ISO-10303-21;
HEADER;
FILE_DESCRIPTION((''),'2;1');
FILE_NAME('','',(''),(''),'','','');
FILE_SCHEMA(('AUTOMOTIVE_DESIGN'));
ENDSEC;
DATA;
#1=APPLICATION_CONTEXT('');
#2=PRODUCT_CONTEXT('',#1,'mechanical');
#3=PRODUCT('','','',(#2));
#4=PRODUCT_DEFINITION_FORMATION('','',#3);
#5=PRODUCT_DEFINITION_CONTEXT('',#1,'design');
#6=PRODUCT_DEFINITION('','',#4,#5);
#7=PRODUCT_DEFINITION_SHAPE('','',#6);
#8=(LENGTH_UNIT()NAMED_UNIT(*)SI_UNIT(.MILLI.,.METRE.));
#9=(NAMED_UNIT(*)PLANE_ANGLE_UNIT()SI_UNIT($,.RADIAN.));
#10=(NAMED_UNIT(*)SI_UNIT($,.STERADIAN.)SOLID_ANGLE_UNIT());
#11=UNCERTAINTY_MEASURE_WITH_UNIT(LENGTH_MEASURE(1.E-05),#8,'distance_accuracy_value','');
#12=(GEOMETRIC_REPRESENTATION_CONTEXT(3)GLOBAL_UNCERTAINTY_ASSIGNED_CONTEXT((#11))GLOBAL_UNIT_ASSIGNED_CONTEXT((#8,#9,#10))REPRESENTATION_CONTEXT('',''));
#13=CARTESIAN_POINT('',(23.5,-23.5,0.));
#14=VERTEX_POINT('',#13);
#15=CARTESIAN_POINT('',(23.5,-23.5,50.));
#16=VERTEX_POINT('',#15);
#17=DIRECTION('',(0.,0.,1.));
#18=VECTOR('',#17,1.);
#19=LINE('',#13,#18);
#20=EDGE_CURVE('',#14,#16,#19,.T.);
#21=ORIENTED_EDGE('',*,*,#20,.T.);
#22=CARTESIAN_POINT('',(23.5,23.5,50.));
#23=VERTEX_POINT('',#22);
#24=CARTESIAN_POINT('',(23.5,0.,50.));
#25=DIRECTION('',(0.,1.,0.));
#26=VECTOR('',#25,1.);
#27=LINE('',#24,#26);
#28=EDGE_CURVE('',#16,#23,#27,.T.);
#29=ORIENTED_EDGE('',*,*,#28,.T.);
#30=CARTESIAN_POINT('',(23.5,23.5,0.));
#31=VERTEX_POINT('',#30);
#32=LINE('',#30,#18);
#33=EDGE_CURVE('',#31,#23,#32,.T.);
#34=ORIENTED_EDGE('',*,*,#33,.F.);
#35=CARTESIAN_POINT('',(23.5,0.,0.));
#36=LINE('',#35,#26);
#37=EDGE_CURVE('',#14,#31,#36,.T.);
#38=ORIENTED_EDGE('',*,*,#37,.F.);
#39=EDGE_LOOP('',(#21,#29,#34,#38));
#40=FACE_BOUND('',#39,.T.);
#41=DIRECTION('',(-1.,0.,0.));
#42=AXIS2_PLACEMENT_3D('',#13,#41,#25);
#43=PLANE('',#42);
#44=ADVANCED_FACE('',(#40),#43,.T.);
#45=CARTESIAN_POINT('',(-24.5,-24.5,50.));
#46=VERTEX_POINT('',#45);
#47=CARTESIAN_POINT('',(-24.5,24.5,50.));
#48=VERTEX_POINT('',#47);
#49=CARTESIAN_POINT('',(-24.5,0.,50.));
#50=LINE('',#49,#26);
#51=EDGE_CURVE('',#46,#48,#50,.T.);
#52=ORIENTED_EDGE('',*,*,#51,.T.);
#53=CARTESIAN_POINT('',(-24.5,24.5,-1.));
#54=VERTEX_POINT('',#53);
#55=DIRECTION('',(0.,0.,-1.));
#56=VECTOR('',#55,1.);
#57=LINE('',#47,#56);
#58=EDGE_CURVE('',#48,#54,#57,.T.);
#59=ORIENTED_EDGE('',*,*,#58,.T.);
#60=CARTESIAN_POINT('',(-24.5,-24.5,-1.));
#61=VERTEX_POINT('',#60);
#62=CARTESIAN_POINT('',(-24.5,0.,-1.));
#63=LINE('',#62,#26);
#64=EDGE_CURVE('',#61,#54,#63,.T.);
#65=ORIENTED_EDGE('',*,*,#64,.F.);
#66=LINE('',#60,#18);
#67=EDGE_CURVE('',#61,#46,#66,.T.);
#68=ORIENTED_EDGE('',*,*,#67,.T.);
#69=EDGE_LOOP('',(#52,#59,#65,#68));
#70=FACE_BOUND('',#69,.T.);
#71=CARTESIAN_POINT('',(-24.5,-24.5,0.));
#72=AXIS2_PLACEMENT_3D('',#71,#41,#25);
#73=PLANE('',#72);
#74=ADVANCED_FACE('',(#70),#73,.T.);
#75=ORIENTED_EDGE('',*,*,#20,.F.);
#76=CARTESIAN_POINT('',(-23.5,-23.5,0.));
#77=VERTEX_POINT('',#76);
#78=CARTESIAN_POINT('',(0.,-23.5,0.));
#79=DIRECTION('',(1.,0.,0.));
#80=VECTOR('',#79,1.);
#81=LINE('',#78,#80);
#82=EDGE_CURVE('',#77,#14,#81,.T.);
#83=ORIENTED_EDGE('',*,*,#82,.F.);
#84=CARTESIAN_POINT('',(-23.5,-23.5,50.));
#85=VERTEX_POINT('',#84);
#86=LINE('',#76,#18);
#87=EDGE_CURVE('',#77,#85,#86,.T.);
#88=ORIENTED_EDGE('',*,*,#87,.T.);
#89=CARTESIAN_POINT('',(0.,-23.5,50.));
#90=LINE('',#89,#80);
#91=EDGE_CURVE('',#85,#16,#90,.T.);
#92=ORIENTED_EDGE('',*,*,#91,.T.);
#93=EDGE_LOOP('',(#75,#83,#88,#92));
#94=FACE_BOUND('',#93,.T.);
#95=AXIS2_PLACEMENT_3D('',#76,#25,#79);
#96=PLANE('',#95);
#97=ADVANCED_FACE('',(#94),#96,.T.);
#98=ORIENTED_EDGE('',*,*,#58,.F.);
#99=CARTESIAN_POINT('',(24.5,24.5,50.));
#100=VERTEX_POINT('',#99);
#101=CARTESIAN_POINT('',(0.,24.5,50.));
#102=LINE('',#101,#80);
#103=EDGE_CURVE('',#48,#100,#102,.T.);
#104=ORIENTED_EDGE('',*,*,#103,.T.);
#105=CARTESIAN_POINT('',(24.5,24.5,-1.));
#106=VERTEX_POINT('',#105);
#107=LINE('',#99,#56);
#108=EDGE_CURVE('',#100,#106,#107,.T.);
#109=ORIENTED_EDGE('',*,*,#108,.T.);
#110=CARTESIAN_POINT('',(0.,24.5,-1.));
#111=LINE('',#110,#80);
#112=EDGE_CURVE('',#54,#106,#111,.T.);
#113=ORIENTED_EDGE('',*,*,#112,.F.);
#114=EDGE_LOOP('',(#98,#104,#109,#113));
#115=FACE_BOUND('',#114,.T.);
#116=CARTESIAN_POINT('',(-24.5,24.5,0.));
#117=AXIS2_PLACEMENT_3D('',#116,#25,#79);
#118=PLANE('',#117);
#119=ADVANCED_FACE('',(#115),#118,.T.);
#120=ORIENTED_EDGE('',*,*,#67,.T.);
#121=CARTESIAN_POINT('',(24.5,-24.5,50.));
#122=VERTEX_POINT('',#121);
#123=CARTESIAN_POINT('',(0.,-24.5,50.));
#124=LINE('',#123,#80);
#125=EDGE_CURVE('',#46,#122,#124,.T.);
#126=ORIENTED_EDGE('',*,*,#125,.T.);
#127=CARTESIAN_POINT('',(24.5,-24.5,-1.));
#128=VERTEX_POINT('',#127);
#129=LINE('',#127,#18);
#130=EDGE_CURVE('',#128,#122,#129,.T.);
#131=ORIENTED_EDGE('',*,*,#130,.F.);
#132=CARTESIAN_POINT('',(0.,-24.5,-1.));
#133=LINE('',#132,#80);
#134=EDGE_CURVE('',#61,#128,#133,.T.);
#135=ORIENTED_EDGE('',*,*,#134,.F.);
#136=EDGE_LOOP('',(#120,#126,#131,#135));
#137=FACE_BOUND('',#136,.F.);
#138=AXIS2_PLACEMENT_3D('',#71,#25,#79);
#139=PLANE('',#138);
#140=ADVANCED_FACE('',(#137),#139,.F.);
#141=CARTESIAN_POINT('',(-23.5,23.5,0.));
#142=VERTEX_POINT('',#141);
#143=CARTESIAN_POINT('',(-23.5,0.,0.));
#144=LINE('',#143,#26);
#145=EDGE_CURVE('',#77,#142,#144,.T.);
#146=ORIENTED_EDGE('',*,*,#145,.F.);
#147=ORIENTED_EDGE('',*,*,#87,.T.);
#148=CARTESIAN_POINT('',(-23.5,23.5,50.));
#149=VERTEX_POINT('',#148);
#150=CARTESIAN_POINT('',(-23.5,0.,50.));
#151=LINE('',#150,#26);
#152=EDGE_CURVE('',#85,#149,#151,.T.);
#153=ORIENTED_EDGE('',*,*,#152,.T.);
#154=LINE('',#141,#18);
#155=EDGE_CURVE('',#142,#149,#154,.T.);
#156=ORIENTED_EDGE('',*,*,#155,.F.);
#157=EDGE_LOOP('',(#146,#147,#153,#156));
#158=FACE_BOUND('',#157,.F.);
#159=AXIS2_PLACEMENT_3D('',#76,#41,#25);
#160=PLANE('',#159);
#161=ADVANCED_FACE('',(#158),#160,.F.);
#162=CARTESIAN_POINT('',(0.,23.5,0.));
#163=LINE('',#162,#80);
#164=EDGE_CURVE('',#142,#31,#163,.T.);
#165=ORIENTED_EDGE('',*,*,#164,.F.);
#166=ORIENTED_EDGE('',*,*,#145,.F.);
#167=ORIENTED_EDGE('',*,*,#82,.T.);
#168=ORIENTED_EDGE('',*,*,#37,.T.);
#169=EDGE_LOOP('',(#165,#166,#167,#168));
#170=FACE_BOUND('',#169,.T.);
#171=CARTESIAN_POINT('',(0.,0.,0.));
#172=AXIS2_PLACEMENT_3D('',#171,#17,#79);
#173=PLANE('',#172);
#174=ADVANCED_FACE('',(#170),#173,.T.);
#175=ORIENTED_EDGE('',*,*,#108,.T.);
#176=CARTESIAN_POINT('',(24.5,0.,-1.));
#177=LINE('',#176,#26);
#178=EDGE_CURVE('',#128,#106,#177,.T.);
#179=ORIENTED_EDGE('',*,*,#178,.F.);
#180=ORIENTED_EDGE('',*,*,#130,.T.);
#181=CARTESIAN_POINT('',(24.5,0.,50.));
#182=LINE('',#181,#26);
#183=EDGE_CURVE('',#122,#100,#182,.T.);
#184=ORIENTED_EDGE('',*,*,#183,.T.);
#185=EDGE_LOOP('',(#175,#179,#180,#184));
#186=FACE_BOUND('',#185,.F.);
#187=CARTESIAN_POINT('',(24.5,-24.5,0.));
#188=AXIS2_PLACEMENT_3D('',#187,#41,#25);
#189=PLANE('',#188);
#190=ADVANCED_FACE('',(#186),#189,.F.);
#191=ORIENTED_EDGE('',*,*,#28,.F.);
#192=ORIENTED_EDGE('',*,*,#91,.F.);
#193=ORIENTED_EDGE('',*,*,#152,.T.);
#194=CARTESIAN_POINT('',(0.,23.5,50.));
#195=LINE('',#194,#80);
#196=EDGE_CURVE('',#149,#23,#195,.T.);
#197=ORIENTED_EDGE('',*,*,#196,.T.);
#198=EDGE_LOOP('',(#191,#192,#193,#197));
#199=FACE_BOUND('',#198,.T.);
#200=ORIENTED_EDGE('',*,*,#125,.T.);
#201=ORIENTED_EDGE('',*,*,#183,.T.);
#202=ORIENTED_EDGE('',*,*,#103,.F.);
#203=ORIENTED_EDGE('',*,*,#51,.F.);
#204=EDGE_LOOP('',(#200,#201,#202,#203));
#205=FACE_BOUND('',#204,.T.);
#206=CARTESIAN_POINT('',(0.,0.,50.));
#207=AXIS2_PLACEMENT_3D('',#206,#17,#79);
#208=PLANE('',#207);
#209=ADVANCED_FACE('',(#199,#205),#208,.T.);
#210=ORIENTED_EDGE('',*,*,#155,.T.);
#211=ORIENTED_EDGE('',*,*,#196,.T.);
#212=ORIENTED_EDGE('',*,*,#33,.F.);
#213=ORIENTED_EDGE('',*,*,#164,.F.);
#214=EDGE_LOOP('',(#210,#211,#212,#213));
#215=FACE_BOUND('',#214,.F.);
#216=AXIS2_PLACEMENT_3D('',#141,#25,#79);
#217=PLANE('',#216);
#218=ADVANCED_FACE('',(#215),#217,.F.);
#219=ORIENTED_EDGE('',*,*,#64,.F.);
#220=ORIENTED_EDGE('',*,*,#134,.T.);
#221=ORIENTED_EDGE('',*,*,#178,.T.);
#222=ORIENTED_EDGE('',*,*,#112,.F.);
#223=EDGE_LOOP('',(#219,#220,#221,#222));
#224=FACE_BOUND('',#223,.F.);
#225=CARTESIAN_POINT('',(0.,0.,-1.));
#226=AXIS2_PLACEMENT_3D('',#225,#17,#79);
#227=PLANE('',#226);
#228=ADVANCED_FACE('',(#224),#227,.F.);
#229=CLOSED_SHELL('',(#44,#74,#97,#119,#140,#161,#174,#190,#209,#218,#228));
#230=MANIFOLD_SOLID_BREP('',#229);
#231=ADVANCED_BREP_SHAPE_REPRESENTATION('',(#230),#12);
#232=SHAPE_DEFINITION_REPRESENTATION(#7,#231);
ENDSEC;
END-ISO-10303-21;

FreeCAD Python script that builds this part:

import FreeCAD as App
import Part
import Sketcher


def add_polygon(sketch, points):
    """Adds a closed chain of lines whose ends are joined by coincident constraints."""
    first, n = sketch.GeometryCount, len(points)
    for a, b in zip(points, points[1:] + points[:1]):
        sketch.addGeometry(Part.LineSegment(App.Vector(*a, 0), App.Vector(*b, 0)), False)
    for i in range(n):
        sketch.addConstraint(Sketcher.Constraint("Coincident", first + i, 2, first + (i + 1) % n, 1))

doc = App.newDocument("Part")
body = doc.addObject("PartDesign::Body", "Body")

# Sketch on XY plane
sketch1 = doc.addObject("Sketcher::SketchObject", "Sketch")
body.addObject(sketch1)
sketch1.AttachmentSupport = (doc.XY_Plane, [""])
sketch1.MapMode = "FlatFace"
add_polygon(sketch1, [(-24, 24), (-24, -24), (24, -24), (24, 24)])  # lines 0-3
sketch1.addConstraint([
    Sketcher.Constraint("Vertical", 0),
    Sketcher.Constraint("Horizontal", 1),
    Sketcher.Constraint("Vertical", 2),
    Sketcher.Constraint("Horizontal", 3),
    Sketcher.Constraint("Symmetric", 0, 2, 2, 2, -1, 1),
    Sketcher.Constraint("Equal", 3, 0),
    Sketcher.Constraint("DistanceX", 1, 1, 1, 2, 49.0),
])
pad1 = doc.addObject("PartDesign::Pad", "Pad")
body.addObject(pad1)
pad1.Profile = sketch1
pad1.Length = 1
pad1.Reversed = True

# Sketch on XY plane
sketch2 = doc.addObject("Sketcher::SketchObject", "Sketch001")
body.addObject(sketch2)
sketch2.AttachmentSupport = (doc.XY_Plane, [""])
sketch2.MapMode = "FlatFace"
add_polygon(sketch2, [(-24, 24), (-24, -24), (24, -24), (24, 24)])  # lines 0-3
add_polygon(sketch2, [(24, -24), (-24, -24), (-24, 24), (24, 24)])  # lines 4-7
sketch2.addConstraint([
    Sketcher.Constraint("Vertical", 0),
    Sketcher.Constraint("Horizontal", 1),
    Sketcher.Constraint("Vertical", 2),
    Sketcher.Constraint("Horizontal", 3),
    Sketcher.Constraint("Horizontal", 4),
    Sketcher.Constraint("Vertical", 5),
    Sketcher.Constraint("Horizontal", 6),
    Sketcher.Constraint("Vertical", 7),
    Sketcher.Constraint("Symmetric", 0, 2, 2, 2, -1, 1),
    Sketcher.Constraint("Symmetric", 4, 2, 6, 2, -1, 1),
    Sketcher.Constraint("Equal", 3, 0),
    Sketcher.Constraint("Equal", 6, 5),
    Sketcher.Constraint("DistanceX", 1, 1, 1, 2, 49.0),
    Sketcher.Constraint("DistanceX", 4, 2, 4, 1, 47.0),
])
pad2 = doc.addObject("PartDesign::Pad", "Pad001")
body.addObject(pad2)
pad2.Profile = sketch2
pad2.Length = 50

doc.recompute()
